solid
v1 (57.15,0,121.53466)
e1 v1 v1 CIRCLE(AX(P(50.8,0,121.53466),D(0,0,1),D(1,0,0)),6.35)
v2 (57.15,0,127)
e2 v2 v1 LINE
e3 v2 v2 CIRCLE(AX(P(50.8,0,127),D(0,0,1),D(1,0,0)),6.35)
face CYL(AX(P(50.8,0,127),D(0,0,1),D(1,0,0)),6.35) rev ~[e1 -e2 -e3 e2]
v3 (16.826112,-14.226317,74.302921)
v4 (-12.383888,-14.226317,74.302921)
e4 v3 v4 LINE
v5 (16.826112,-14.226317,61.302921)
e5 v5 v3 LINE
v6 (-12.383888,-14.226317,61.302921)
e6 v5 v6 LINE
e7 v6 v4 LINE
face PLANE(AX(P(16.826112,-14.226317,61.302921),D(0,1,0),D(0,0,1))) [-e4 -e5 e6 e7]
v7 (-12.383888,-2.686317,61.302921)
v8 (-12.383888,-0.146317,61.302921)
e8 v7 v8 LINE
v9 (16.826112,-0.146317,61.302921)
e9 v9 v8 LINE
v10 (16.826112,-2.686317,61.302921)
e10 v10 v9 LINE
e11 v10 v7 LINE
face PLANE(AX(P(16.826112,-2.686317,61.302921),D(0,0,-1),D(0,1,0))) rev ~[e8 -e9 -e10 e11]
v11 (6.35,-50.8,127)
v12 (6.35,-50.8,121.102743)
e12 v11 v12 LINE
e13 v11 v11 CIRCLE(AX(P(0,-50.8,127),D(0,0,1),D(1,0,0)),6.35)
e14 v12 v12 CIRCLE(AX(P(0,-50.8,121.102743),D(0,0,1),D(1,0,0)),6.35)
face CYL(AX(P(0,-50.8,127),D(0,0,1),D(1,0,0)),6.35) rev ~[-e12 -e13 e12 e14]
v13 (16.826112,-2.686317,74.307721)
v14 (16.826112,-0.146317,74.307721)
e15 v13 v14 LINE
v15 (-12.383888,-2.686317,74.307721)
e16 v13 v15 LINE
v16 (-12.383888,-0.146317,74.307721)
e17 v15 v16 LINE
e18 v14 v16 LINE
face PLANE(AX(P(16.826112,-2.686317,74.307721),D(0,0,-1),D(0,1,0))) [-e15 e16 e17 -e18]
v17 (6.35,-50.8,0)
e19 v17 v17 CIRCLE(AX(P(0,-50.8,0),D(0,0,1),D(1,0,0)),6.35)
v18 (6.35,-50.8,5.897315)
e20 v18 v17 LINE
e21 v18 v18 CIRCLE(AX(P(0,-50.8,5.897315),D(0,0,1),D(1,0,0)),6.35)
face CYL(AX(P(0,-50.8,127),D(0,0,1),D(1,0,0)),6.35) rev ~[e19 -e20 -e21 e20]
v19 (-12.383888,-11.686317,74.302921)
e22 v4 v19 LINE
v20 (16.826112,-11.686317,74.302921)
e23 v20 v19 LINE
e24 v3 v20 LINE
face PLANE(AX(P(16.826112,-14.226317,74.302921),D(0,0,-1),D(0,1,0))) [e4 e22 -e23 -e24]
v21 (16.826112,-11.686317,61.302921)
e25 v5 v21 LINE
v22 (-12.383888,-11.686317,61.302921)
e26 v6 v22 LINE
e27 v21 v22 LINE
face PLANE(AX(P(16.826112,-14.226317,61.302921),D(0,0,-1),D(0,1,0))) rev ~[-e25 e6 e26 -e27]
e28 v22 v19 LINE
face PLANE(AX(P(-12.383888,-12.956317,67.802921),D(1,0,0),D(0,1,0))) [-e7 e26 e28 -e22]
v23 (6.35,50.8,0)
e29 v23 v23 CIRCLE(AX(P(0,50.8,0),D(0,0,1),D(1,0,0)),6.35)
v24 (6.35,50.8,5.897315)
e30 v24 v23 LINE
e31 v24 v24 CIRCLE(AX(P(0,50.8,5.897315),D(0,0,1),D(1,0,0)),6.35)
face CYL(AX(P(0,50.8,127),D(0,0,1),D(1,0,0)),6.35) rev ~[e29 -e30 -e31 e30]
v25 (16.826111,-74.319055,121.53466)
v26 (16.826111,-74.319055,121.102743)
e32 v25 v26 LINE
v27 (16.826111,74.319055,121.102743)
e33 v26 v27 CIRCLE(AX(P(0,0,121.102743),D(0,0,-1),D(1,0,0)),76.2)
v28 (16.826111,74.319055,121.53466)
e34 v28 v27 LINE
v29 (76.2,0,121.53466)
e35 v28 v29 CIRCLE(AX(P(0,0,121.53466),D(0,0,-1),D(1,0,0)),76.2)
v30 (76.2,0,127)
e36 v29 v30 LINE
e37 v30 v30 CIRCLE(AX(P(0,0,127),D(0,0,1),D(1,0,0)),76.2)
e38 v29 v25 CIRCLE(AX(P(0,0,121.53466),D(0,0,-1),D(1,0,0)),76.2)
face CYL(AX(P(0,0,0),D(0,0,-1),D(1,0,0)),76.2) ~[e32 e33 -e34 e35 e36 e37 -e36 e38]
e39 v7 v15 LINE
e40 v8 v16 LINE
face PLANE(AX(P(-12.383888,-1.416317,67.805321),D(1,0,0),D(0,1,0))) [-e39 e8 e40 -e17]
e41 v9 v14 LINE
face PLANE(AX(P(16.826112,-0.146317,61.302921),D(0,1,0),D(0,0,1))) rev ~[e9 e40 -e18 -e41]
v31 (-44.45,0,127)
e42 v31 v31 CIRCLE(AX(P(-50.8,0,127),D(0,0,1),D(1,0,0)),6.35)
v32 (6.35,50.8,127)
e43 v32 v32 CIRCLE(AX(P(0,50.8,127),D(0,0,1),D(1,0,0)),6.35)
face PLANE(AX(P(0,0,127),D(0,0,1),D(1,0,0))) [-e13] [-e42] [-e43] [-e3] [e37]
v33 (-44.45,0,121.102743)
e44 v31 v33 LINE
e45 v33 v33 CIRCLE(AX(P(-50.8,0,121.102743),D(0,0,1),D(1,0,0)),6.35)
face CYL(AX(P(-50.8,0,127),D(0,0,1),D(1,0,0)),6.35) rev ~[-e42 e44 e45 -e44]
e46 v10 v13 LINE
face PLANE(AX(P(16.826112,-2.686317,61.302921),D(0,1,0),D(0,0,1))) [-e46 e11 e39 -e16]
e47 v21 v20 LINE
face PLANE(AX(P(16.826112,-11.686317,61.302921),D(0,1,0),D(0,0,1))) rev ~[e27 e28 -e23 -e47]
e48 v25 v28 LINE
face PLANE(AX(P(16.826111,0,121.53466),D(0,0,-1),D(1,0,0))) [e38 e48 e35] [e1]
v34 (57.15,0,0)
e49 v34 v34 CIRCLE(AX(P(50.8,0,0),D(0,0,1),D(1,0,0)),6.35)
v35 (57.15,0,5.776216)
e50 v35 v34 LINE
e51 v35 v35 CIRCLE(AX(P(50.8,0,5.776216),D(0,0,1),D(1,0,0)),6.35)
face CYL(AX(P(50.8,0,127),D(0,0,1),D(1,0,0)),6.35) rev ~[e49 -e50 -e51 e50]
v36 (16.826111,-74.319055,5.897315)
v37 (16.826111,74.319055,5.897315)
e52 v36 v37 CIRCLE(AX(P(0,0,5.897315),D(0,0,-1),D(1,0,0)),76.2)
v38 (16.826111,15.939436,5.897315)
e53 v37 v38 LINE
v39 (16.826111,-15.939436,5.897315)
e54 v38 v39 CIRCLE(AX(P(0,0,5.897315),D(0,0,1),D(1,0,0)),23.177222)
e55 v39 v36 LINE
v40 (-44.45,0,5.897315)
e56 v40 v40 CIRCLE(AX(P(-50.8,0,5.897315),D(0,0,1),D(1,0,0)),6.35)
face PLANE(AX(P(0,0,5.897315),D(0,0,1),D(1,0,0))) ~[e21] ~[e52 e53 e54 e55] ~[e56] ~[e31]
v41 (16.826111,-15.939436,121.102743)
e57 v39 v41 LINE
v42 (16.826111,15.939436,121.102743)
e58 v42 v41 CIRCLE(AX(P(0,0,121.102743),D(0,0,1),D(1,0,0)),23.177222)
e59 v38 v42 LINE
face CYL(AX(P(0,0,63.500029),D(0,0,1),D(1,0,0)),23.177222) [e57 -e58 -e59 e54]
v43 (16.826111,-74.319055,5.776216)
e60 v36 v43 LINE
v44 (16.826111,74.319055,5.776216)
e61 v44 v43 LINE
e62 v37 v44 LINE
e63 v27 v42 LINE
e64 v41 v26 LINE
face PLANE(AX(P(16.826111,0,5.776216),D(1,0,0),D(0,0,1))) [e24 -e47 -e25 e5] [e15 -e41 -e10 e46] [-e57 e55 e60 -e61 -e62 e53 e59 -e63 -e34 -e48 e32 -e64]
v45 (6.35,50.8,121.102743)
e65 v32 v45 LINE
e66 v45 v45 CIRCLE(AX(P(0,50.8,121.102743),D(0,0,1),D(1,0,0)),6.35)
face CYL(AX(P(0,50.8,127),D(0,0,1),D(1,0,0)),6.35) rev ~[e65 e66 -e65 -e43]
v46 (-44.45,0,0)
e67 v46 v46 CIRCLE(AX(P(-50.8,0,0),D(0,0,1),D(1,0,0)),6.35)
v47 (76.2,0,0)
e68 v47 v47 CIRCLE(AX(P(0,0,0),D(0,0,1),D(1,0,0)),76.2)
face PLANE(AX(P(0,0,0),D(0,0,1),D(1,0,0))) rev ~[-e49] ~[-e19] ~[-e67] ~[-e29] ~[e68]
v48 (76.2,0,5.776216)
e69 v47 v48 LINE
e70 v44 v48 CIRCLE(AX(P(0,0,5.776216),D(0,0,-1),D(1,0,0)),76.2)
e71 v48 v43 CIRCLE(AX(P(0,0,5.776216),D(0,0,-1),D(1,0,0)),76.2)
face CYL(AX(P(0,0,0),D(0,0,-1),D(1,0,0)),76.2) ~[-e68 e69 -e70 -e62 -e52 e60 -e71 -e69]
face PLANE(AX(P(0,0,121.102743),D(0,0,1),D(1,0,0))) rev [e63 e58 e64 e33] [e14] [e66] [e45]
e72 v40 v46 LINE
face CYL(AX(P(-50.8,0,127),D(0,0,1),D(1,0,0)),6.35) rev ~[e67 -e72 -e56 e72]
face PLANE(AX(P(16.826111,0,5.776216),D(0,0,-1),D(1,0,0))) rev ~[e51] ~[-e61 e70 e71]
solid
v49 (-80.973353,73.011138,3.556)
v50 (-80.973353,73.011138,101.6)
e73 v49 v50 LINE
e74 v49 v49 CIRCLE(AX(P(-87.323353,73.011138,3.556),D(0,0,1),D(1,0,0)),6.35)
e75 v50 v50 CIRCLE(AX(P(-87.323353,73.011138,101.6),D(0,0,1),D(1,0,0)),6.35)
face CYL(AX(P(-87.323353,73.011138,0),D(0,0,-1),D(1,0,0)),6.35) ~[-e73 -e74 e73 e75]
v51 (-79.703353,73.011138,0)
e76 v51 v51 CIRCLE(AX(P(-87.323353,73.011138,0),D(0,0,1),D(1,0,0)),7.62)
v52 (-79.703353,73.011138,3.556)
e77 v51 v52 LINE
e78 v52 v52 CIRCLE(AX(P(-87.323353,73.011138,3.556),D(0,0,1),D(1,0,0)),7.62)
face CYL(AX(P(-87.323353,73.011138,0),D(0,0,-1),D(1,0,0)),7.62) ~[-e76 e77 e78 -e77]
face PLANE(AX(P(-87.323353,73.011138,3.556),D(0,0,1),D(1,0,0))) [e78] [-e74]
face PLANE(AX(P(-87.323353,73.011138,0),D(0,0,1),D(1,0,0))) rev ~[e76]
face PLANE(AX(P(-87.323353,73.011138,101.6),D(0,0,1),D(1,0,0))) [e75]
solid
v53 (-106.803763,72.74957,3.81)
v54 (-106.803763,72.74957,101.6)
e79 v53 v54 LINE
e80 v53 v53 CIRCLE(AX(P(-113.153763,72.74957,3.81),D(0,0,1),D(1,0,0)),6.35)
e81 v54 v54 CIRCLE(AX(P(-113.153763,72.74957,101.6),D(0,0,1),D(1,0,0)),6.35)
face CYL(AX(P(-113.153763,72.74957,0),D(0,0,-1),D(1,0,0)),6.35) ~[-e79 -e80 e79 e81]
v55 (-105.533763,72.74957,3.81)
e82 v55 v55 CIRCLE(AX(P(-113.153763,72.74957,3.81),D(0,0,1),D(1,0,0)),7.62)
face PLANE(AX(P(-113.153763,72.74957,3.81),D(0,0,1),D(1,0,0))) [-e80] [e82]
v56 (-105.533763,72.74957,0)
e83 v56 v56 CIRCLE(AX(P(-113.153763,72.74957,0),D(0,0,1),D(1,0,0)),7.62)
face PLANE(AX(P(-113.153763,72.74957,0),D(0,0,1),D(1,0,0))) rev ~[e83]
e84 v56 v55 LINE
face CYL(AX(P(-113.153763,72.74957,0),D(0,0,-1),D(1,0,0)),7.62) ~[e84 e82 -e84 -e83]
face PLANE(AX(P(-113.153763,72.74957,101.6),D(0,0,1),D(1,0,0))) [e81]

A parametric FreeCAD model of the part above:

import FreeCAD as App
import Part
import Sketcher

V = App.Vector
Q = App.Units.Quantity


def add_polygon(sketch, points):
    """Adds a closed chain of lines whose ends are joined by coincident constraints."""
    first, n = sketch.GeometryCount, len(points)
    for a, b in zip(points, points[1:] + points[:1]):
        sketch.addGeometry(Part.LineSegment(App.Vector(*a, 0), App.Vector(*b, 0)), False)
    for i in range(n):
        sketch.addConstraint(Sketcher.Constraint("Coincident", first + i, 2, first + (i + 1) % n, 1))

doc = App.newDocument("Part")
params = doc.addObject("Spreadsheet::Sheet", "Params")
for row, (alias, value) in enumerate([
    ("sketch1_diameter", "6 in"),
    ("pad1_length", "5 in"),
    ("groove_angle", "360 deg"),
    ("sketch3_diameter", "0.5 in"),
    ("pocket1_length", "5.39 in"),
    ("pocket2_length", "7 in"),
    ("sketch5_width", "0.1 in"),
    ("sketch5_height", "0.512 in"),
    ("pocket3_length", "1.15 in"),
    ("sketch6_diameter", "0.6 in"),
    ("sketch6_diameter2", "0.5 in"),
    ("pad2_length", "0.15 in"),
    ("sketch7_diameter", "0.5 in"),
    ("pad3_length", "4 in"),
    ("sketch8_diameter", "0.6 in"),
    ("sketch8_diameter2", "0.5 in"),
    ("pad4_length", "0.14 in"),
    ("sketch9_diameter", "0.5 in"),
    ("pad5_length", "4 in"),
], start=1):
    params.set(f"A{row}", alias)
    params.set(f"B{row}", "=" + value)
    params.setAlias(f"B{row}", alias)

body = doc.addObject("PartDesign::Body", "Body")

sketch1 = doc.addObject("Sketcher::SketchObject", "Sketch")
body.addObject(sketch1)
sketch1.AttachmentSupport = (doc.XY_Plane, [""])
sketch1.MapMode = "FlatFace"
sketch1.addGeometry(Part.Circle(V(0, 0, 0), V(0, 0, 1), 76.2), False)
sketch1.addConstraint([
    Sketcher.Constraint("Coincident", 0, 3, -1, 1),
    Sketcher.Constraint("Diameter", 0, Q("6 in")),
])
sketch1.setExpression("Constraints[1]", "Params.sketch1_diameter")
pad1 = doc.addObject("PartDesign::Pad", "Pad")
body.addObject(pad1)
pad1.Profile = sketch1
pad1.setExpression("Length", "Params.pad1_length")

sketch2 = doc.addObject("Sketcher::SketchObject", "Sketch001")
body.addObject(sketch2)
sketch2.AttachmentSupport = (doc.XZ_Plane, [""])
sketch2.MapMode = "FlatFace"
add_polygon(sketch2, [(23.177222, 121.102743), (23.177222, 5.897315), (99.322311, 5.897315), (99.322311, 121.102743)])
sketch2.addConstraint([
    Sketcher.Constraint("Vertical", 0),
    Sketcher.Constraint("Horizontal", 1),
    Sketcher.Constraint("Vertical", 2),
    Sketcher.Constraint("Horizontal", 3),
    Sketcher.Constraint("DistanceX", 1, 1, 1, 2, Q("76.145089 mm")),
    Sketcher.Constraint("DistanceY", 0, 2, 0, 1, Q("115.205428 mm")),
    Sketcher.Constraint("DistanceX", -1, 1, 1, 2, Q("99.322311 mm")),
    Sketcher.Constraint("DistanceY", -1, 1, 0, 2, Q("5.897315 mm")),
])
groove = doc.addObject("PartDesign::Groove", "Groove")
body.addObject(groove)
groove.Profile = sketch2
groove.ReferenceAxis = (sketch2, ["V_Axis"])
groove.setExpression("Angle", "Params.groove_angle")

sketch3 = doc.addObject("Sketcher::SketchObject", "Sketch002")
body.addObject(sketch3)
sketch3.AttachmentSupport = (doc.XY_Plane, [""])
sketch3.MapMode = "FlatFace"
sketch3.AttachmentOffset = App.Placement(V(0, 0, 5 * 25.4), App.Rotation())
sketch3.addGeometry([
    Part.Circle(V(0, 50.8, 0), V(0, 0, 1), 6.35),
    Part.Circle(V(50.8, 0, 0), V(0, 0, 1), 6.35),
    Part.Circle(V(-50.8, 0, 0), V(0, 0, 1), 6.35),
    Part.Circle(V(0, -50.8, 0), V(0, 0, 1), 6.35),
], False)
sketch3.addConstraint([
    Sketcher.Constraint("Equal", 0, 1),
    Sketcher.Constraint("Equal", 1, 2),
    Sketcher.Constraint("Equal", 2, 3),
    Sketcher.Constraint("Symmetric", 1, 3, 2, 3, -1, 1),
    Sketcher.Constraint("Symmetric", 0, 3, 3, 3, -1, 1),
    Sketcher.Constraint("PointOnObject", 0, 3, -2),
    Sketcher.Constraint("PointOnObject", 1, 3, -1),
    Sketcher.Constraint("Diameter", 0, Q("0.5 in")),
    Sketcher.Constraint("DistanceY", -1, 1, 0, 3, Q("2 in")),
    Sketcher.Constraint("DistanceX", -1, 1, 1, 3, Q("2 in")),
])
sketch3.setExpression("Constraints[7]", "Params.sketch3_diameter")
pocket1 = doc.addObject("PartDesign::Pocket", "Pocket")
body.addObject(pocket1)
pocket1.Profile = sketch3
pocket1.setExpression("Length", "Params.pocket1_length")

sketch4 = doc.addObject("Sketcher::SketchObject", "Sketch003")
body.addObject(sketch4)
sketch4.AttachmentSupport = (doc.XZ_Plane, [""])
sketch4.MapMode = "FlatFace"
add_polygon(sketch4, [(16.826111, 121.53466), (16.826111, 5.776216), (133.99352, 5.776216), (133.99352, 121.53466)])
sketch4.addConstraint([
    Sketcher.Constraint("Vertical", 0),
    Sketcher.Constraint("Horizontal", 1),
    Sketcher.Constraint("Vertical", 2),
    Sketcher.Constraint("Horizontal", 3),
    Sketcher.Constraint("DistanceX", 1, 1, 1, 2, Q("117.167409 mm")),
    Sketcher.Constraint("DistanceY", 0, 2, 0, 1, Q("115.758444 mm")),
    Sketcher.Constraint("DistanceX", -1, 1, 0, 2, Q("16.826111 mm")),
    Sketcher.Constraint("DistanceY", -1, 1, 2, 2, Q("121.53466 mm")),
])
pocket2 = doc.addObject("PartDesign::Pocket", "Pocket001")
body.addObject(pocket2)
pocket2.Profile = sketch4
pocket2.setExpression("Length", "Params.pocket2_length")
pocket2.Midplane = True

sketch5 = doc.addObject("Sketcher::SketchObject", "Sketch004")
body.addObject(sketch5)
sketch5.AttachmentSupport = (doc.YZ_Plane, [""])
sketch5.MapMode = "FlatFace"
sketch5.AttachmentOffset = App.Placement(V(0, 0, 16.826112), App.Rotation())
add_polygon(sketch5, [(-14.226317, 74.302921), (-14.226317, 61.302921), (-11.686317, 61.302921), (-11.686317, 74.302921)])
add_polygon(sketch5, [(-2.686317, 74.307721), (-2.686317, 61.302921), (-0.146317, 61.302921), (-0.146317, 74.307721)])
sketch5.addConstraint([
    Sketcher.Constraint("Vertical", 0),
    Sketcher.Constraint("Horizontal", 1),
    Sketcher.Constraint("Vertical", 2),
    Sketcher.Constraint("Horizontal", 3),
    Sketcher.Constraint("Vertical", 4),
    Sketcher.Constraint("Horizontal", 5),
    Sketcher.Constraint("Vertical", 6),
    Sketcher.Constraint("Horizontal", 7),
    Sketcher.Constraint("Horizontal", 1, 2, 4, 2),
    Sketcher.Constraint("Equal", 3, 5),
    Sketcher.Constraint("DistanceX", 1, 1, 1, 2, Q("0.1 in")),
    Sketcher.Constraint("DistanceY", 4, 2, 4, 1, Q("0.512 in")),
    Sketcher.Constraint("DistanceY", 0, 2, 0, 1, Q("13 mm")),
    Sketcher.Constraint("DistanceX", 1, 2, 4, 2, Q("9 mm")),
    Sketcher.Constraint("DistanceY", -1, 1, 0, 2, Q("61.302921 mm")),
    Sketcher.Constraint("DistanceX", 0, 2, -1, 1, Q("14.226317 mm")),
])
sketch5.setExpression("Constraints[18]", "Params.sketch5_width")
sketch5.setExpression("Constraints[19]", "Params.sketch5_height")
pocket3 = doc.addObject("PartDesign::Pocket", "Pocket002")
body.addObject(pocket3)
pocket3.Profile = sketch5
pocket3.setExpression("Length", "Params.pocket3_length")
body2 = doc.addObject("PartDesign::Body", "Body001")

sketch6 = doc.addObject("Sketcher::SketchObject", "Sketch005")
body2.addObject(sketch6)
sketch6.AttachmentSupport = (doc.getObject("XY_Plane001"), [""])
sketch6.MapMode = "FlatFace"
sketch6.addGeometry([
    Part.Circle(V(-113.153763, 72.74957, 0), V(0, 0, 1), 7.62),
    Part.Circle(V(-113.153763, 72.74957, 0), V(0, 0, 1), 6.35),
], False)
sketch6.addConstraint([
    Sketcher.Constraint("Coincident", 1, 3, 0, 3),
    Sketcher.Constraint("Diameter", 0, Q("0.6 in")),
    Sketcher.Constraint("Diameter", 1, Q("0.5 in")),
    Sketcher.Constraint("DistanceY", -1, 1, 0, 3, Q("72.74957 mm")),
    Sketcher.Constraint("DistanceX", 0, 3, -1, 1, Q("113.153763 mm")),
])
sketch6.setExpression("Constraints[1]", "Params.sketch6_diameter")
sketch6.setExpression("Constraints[2]", "Params.sketch6_diameter2")
pad2 = doc.addObject("PartDesign::Pad", "Pad001")
body2.addObject(pad2)
pad2.Profile = sketch6
pad2.setExpression("Length", "Params.pad2_length")

sketch7 = doc.addObject("Sketcher::SketchObject", "Sketch006")
body2.addObject(sketch7)
sketch7.AttachmentSupport = (doc.getObject("XY_Plane001"), [""])
sketch7.MapMode = "FlatFace"
sketch7.addGeometry(Part.Circle(V(-113.153763, 72.74957, 0), V(0, 0, 1), 6.35), False)
sketch7.addConstraint([
    Sketcher.Constraint("Diameter", 0, Q("0.5 in")),
    Sketcher.Constraint("DistanceY", -1, 1, 0, 3, Q("72.74957 mm")),
    Sketcher.Constraint("DistanceX", 0, 3, -1, 1, Q("113.153763 mm")),
])
sketch7.setExpression("Constraints[0]", "Params.sketch7_diameter")
pad3 = doc.addObject("PartDesign::Pad", "Pad002")
body2.addObject(pad3)
pad3.Profile = sketch7
pad3.setExpression("Length", "Params.pad3_length")
body3 = doc.addObject("PartDesign::Body", "Body002")

sketch8 = doc.addObject("Sketcher::SketchObject", "Sketch007")
body3.addObject(sketch8)
sketch8.AttachmentSupport = (doc.getObject("XY_Plane002"), [""])
sketch8.MapMode = "FlatFace"
sketch8.addGeometry([
    Part.Circle(V(-87.323353, 73.011138, 0), V(0, 0, 1), 7.62),
    Part.Circle(V(-87.323353, 73.011138, 0), V(0, 0, 1), 6.35),
], False)
sketch8.addConstraint([
    Sketcher.Constraint("Coincident", 1, 3, 0, 3),
    Sketcher.Constraint("Diameter", 0, Q("0.6 in")),
    Sketcher.Constraint("Diameter", 1, Q("0.5 in")),
    Sketcher.Constraint("DistanceY", -1, 1, 0, 3, Q("73.011138 mm")),
    Sketcher.Constraint("DistanceX", 0, 3, -1, 1, Q("87.323353 mm")),
])
sketch8.setExpression("Constraints[1]", "Params.sketch8_diameter")
sketch8.setExpression("Constraints[2]", "Params.sketch8_diameter2")
pad4 = doc.addObject("PartDesign::Pad", "Pad003")
body3.addObject(pad4)
pad4.Profile = sketch8
pad4.setExpression("Length", "Params.pad4_length")

sketch9 = doc.addObject("Sketcher::SketchObject", "Sketch008")
body3.addObject(sketch9)
sketch9.AttachmentSupport = (doc.getObject("XY_Plane002"), [""])
sketch9.MapMode = "FlatFace"
sketch9.addGeometry(Part.Circle(V(-87.323353, 73.011138, 0), V(0, 0, 1), 6.35), False)
sketch9.addConstraint([
    Sketcher.Constraint("Diameter", 0, Q("0.5 in")),
    Sketcher.Constraint("DistanceY", -1, 1, 0, 3, Q("73.011138 mm")),
    Sketcher.Constraint("DistanceX", 0, 3, -1, 1, Q("87.323353 mm")),
])
sketch9.setExpression("Constraints[0]", "Params.sketch9_diameter")
pad5 = doc.addObject("PartDesign::Pad", "Pad004")
body3.addObject(pad5)
pad5.Profile = sketch9
pad5.setExpression("Length", "Params.pad5_length")

doc.recompute()
